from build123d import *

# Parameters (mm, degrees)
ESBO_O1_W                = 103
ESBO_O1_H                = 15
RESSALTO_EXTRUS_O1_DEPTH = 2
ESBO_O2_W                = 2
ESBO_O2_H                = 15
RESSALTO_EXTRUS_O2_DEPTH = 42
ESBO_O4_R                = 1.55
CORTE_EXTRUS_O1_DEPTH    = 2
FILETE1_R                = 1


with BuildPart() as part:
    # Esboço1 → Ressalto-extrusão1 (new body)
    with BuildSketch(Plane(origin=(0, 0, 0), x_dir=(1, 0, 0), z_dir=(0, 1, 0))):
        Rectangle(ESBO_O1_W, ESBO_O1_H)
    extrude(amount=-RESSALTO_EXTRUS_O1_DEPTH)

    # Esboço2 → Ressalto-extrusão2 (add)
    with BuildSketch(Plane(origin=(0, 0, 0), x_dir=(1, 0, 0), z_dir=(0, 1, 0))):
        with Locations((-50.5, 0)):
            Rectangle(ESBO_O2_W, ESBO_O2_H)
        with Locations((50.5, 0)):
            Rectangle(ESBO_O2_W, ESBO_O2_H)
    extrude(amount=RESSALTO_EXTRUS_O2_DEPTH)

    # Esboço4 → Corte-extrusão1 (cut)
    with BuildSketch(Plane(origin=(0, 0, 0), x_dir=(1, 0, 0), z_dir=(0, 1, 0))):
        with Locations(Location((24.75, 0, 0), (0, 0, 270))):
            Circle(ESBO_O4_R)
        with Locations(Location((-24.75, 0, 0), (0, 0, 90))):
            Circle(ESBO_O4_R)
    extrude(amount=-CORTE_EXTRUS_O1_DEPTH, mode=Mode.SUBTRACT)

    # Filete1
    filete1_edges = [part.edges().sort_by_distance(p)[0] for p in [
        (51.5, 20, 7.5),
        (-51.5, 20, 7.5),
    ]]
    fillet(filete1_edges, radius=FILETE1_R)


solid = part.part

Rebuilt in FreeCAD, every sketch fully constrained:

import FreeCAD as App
import Part
import Sketcher

V = App.Vector


def edges_at(feature, points):
    """Names of the edges that pass closest to the given points."""
    edges = feature.Shape.Edges
    near = lambda p: min(range(len(edges)), key=lambda i: edges[i].distToShape(Part.Vertex(*p))[0])
    return sorted({f"Edge{near(p) + 1}" for p in points})

doc = App.newDocument("Part")
body = doc.addObject("PartDesign::Body", "Body")

sketch1 = body.newObject("Sketcher::SketchObject", "Sketch")
sketch1.AttachmentSupport = (doc.getObject("XZ_Plane"), [""])
sketch1.MapMode = "FlatFace"
sketch1.addGeometry(Part.LineSegment(V(-51.5, -7.5, 0), V(-51.5, 7.5, 0)), False)
sketch1.addGeometry(Part.LineSegment(V(-51.5, 7.5, 0), V(51.5, 7.5, 0)), False)
sketch1.addGeometry(Part.LineSegment(V(51.5, 7.5, 0), V(51.5, -7.5, 0)), False)
sketch1.addGeometry(Part.LineSegment(V(51.5, -7.5, 0), V(-51.5, -7.5, 0)), False)
sketch1.addConstraint(Sketcher.Constraint("Coincident", 0, 2, 1, 1))
sketch1.addConstraint(Sketcher.Constraint("Coincident", 1, 2, 2, 1))
sketch1.addConstraint(Sketcher.Constraint("Coincident", 2, 2, 3, 1))
sketch1.addConstraint(Sketcher.Constraint("Coincident", 3, 2, 0, 1))
sketch1.addConstraint(Sketcher.Constraint("Vertical", 0))
sketch1.addConstraint(Sketcher.Constraint("Horizontal", 1))
sketch1.addConstraint(Sketcher.Constraint("Vertical", 2))
sketch1.addConstraint(Sketcher.Constraint("Horizontal", 3))
sketch1.addConstraint(Sketcher.Constraint("Symmetric", 0, 2, 2, 2, -1, 1))
sketch1.addConstraint(Sketcher.Constraint("DistanceX", 1, 1, 1, 2, 103.0))
sketch1.addConstraint(Sketcher.Constraint("DistanceY", 0, 1, 0, 2, 15.0))
pad1 = body.newObject("PartDesign::Pad", "Pad")
pad1.Profile = sketch1
pad1.Length = 2

sketch2 = body.newObject("Sketcher::SketchObject", "Sketch001")
sketch2.AttachmentSupport = (doc.getObject("XZ_Plane"), [""])
sketch2.MapMode = "FlatFace"
sketch2.addGeometry(Part.LineSegment(V(-51.5, -7.5, 0), V(-51.5, 7.5, 0)), False)
sketch2.addGeometry(Part.LineSegment(V(-51.5, 7.5, 0), V(-49.5, 7.5, 0)), False)
sketch2.addGeometry(Part.LineSegment(V(-49.5, 7.5, 0), V(-49.5, -7.5, 0)), False)
sketch2.addGeometry(Part.LineSegment(V(-49.5, -7.5, 0), V(-51.5, -7.5, 0)), False)
sketch2.addGeometry(Part.LineSegment(V(49.5, -7.5, 0), V(49.5, 7.5, 0)), False)
sketch2.addGeometry(Part.LineSegment(V(49.5, 7.5, 0), V(51.5, 7.5, 0)), False)
sketch2.addGeometry(Part.LineSegment(V(51.5, 7.5, 0), V(51.5, -7.5, 0)), False)
sketch2.addGeometry(Part.LineSegment(V(51.5, -7.5, 0), V(49.5, -7.5, 0)), False)
sketch2.addConstraint(Sketcher.Constraint("Coincident", 0, 2, 1, 1))
sketch2.addConstraint(Sketcher.Constraint("Coincident", 1, 2, 2, 1))
sketch2.addConstraint(Sketcher.Constraint("Coincident", 2, 2, 3, 1))
sketch2.addConstraint(Sketcher.Constraint("Coincident", 3, 2, 0, 1))
sketch2.addConstraint(Sketcher.Constraint("Coincident", 4, 2, 5, 1))
sketch2.addConstraint(Sketcher.Constraint("Coincident", 5, 2, 6, 1))
sketch2.addConstraint(Sketcher.Constraint("Coincident", 6, 2, 7, 1))
sketch2.addConstraint(Sketcher.Constraint("Coincident", 7, 2, 4, 1))
sketch2.addConstraint(Sketcher.Constraint("Vertical", 0))
sketch2.addConstraint(Sketcher.Constraint("Horizontal", 1))
sketch2.addConstraint(Sketcher.Constraint("Vertical", 2))
sketch2.addConstraint(Sketcher.Constraint("Horizontal", 3))
sketch2.addConstraint(Sketcher.Constraint("Vertical", 4))
sketch2.addConstraint(Sketcher.Constraint("Horizontal", 5))
sketch2.addConstraint(Sketcher.Constraint("Vertical", 6))
sketch2.addConstraint(Sketcher.Constraint("Horizontal", 7))
sketch2.addConstraint(Sketcher.Constraint("Symmetric", 2, 2, 4, 2, -1, 1))
sketch2.addConstraint(Sketcher.Constraint("Symmetric", 0, 2, 6, 2, -1, 1))
sketch2.addConstraint(Sketcher.Constraint("Horizontal", 1, 2, 4, 2))
sketch2.addConstraint(Sketcher.Constraint("DistanceX", 1, 1, 1, 2, 2.0))
sketch2.addConstraint(Sketcher.Constraint("DistanceY", 0, 1, 0, 2, 15.0))
sketch2.addConstraint(Sketcher.Constraint("DistanceX", 1, 2, 4, 2, 99.0))
pad2 = body.newObject("PartDesign::Pad", "Pad001")
pad2.Profile = sketch2
pad2.Length = 42
pad2.Reversed = True

sketch3 = body.newObject("Sketcher::SketchObject", "Sketch002")
sketch3.AttachmentSupport = (doc.getObject("XZ_Plane"), [""])
sketch3.MapMode = "FlatFace"
sketch3.addGeometry(Part.Circle(V(24.75, 0, 0), V(0, 0, 1), 1.55), False)
sketch3.addGeometry(Part.Circle(V(-24.75, 0, 0), V(0, 0, 1), 1.55), False)
sketch3.addConstraint(Sketcher.Constraint("Equal", 0, 1))
sketch3.addConstraint(Sketcher.Constraint("Symmetric", 0, 3, 1, 3, -1, 1))
sketch3.addConstraint(Sketcher.Constraint("PointOnObject", 0, 3, -1))
sketch3.addConstraint(Sketcher.Constraint("Diameter", 0, 3.1))
sketch3.addConstraint(Sketcher.Constraint("DistanceX", 1, 3, 0, 3, 49.5))
pocket1 = body.newObject("PartDesign::Pocket", "Pocket")
pocket1.Profile = sketch3
pocket1.Length = 2
pocket1.Reversed = True
doc.recompute()

fillet = body.newObject("PartDesign::Fillet", "Fillet")
fillet.Base = (pocket1, edges_at(pocket1, [(51.5, 20, 7.5), (-51.5, 20, 7.5)]))
fillet.Radius = 1

doc.recompute()
